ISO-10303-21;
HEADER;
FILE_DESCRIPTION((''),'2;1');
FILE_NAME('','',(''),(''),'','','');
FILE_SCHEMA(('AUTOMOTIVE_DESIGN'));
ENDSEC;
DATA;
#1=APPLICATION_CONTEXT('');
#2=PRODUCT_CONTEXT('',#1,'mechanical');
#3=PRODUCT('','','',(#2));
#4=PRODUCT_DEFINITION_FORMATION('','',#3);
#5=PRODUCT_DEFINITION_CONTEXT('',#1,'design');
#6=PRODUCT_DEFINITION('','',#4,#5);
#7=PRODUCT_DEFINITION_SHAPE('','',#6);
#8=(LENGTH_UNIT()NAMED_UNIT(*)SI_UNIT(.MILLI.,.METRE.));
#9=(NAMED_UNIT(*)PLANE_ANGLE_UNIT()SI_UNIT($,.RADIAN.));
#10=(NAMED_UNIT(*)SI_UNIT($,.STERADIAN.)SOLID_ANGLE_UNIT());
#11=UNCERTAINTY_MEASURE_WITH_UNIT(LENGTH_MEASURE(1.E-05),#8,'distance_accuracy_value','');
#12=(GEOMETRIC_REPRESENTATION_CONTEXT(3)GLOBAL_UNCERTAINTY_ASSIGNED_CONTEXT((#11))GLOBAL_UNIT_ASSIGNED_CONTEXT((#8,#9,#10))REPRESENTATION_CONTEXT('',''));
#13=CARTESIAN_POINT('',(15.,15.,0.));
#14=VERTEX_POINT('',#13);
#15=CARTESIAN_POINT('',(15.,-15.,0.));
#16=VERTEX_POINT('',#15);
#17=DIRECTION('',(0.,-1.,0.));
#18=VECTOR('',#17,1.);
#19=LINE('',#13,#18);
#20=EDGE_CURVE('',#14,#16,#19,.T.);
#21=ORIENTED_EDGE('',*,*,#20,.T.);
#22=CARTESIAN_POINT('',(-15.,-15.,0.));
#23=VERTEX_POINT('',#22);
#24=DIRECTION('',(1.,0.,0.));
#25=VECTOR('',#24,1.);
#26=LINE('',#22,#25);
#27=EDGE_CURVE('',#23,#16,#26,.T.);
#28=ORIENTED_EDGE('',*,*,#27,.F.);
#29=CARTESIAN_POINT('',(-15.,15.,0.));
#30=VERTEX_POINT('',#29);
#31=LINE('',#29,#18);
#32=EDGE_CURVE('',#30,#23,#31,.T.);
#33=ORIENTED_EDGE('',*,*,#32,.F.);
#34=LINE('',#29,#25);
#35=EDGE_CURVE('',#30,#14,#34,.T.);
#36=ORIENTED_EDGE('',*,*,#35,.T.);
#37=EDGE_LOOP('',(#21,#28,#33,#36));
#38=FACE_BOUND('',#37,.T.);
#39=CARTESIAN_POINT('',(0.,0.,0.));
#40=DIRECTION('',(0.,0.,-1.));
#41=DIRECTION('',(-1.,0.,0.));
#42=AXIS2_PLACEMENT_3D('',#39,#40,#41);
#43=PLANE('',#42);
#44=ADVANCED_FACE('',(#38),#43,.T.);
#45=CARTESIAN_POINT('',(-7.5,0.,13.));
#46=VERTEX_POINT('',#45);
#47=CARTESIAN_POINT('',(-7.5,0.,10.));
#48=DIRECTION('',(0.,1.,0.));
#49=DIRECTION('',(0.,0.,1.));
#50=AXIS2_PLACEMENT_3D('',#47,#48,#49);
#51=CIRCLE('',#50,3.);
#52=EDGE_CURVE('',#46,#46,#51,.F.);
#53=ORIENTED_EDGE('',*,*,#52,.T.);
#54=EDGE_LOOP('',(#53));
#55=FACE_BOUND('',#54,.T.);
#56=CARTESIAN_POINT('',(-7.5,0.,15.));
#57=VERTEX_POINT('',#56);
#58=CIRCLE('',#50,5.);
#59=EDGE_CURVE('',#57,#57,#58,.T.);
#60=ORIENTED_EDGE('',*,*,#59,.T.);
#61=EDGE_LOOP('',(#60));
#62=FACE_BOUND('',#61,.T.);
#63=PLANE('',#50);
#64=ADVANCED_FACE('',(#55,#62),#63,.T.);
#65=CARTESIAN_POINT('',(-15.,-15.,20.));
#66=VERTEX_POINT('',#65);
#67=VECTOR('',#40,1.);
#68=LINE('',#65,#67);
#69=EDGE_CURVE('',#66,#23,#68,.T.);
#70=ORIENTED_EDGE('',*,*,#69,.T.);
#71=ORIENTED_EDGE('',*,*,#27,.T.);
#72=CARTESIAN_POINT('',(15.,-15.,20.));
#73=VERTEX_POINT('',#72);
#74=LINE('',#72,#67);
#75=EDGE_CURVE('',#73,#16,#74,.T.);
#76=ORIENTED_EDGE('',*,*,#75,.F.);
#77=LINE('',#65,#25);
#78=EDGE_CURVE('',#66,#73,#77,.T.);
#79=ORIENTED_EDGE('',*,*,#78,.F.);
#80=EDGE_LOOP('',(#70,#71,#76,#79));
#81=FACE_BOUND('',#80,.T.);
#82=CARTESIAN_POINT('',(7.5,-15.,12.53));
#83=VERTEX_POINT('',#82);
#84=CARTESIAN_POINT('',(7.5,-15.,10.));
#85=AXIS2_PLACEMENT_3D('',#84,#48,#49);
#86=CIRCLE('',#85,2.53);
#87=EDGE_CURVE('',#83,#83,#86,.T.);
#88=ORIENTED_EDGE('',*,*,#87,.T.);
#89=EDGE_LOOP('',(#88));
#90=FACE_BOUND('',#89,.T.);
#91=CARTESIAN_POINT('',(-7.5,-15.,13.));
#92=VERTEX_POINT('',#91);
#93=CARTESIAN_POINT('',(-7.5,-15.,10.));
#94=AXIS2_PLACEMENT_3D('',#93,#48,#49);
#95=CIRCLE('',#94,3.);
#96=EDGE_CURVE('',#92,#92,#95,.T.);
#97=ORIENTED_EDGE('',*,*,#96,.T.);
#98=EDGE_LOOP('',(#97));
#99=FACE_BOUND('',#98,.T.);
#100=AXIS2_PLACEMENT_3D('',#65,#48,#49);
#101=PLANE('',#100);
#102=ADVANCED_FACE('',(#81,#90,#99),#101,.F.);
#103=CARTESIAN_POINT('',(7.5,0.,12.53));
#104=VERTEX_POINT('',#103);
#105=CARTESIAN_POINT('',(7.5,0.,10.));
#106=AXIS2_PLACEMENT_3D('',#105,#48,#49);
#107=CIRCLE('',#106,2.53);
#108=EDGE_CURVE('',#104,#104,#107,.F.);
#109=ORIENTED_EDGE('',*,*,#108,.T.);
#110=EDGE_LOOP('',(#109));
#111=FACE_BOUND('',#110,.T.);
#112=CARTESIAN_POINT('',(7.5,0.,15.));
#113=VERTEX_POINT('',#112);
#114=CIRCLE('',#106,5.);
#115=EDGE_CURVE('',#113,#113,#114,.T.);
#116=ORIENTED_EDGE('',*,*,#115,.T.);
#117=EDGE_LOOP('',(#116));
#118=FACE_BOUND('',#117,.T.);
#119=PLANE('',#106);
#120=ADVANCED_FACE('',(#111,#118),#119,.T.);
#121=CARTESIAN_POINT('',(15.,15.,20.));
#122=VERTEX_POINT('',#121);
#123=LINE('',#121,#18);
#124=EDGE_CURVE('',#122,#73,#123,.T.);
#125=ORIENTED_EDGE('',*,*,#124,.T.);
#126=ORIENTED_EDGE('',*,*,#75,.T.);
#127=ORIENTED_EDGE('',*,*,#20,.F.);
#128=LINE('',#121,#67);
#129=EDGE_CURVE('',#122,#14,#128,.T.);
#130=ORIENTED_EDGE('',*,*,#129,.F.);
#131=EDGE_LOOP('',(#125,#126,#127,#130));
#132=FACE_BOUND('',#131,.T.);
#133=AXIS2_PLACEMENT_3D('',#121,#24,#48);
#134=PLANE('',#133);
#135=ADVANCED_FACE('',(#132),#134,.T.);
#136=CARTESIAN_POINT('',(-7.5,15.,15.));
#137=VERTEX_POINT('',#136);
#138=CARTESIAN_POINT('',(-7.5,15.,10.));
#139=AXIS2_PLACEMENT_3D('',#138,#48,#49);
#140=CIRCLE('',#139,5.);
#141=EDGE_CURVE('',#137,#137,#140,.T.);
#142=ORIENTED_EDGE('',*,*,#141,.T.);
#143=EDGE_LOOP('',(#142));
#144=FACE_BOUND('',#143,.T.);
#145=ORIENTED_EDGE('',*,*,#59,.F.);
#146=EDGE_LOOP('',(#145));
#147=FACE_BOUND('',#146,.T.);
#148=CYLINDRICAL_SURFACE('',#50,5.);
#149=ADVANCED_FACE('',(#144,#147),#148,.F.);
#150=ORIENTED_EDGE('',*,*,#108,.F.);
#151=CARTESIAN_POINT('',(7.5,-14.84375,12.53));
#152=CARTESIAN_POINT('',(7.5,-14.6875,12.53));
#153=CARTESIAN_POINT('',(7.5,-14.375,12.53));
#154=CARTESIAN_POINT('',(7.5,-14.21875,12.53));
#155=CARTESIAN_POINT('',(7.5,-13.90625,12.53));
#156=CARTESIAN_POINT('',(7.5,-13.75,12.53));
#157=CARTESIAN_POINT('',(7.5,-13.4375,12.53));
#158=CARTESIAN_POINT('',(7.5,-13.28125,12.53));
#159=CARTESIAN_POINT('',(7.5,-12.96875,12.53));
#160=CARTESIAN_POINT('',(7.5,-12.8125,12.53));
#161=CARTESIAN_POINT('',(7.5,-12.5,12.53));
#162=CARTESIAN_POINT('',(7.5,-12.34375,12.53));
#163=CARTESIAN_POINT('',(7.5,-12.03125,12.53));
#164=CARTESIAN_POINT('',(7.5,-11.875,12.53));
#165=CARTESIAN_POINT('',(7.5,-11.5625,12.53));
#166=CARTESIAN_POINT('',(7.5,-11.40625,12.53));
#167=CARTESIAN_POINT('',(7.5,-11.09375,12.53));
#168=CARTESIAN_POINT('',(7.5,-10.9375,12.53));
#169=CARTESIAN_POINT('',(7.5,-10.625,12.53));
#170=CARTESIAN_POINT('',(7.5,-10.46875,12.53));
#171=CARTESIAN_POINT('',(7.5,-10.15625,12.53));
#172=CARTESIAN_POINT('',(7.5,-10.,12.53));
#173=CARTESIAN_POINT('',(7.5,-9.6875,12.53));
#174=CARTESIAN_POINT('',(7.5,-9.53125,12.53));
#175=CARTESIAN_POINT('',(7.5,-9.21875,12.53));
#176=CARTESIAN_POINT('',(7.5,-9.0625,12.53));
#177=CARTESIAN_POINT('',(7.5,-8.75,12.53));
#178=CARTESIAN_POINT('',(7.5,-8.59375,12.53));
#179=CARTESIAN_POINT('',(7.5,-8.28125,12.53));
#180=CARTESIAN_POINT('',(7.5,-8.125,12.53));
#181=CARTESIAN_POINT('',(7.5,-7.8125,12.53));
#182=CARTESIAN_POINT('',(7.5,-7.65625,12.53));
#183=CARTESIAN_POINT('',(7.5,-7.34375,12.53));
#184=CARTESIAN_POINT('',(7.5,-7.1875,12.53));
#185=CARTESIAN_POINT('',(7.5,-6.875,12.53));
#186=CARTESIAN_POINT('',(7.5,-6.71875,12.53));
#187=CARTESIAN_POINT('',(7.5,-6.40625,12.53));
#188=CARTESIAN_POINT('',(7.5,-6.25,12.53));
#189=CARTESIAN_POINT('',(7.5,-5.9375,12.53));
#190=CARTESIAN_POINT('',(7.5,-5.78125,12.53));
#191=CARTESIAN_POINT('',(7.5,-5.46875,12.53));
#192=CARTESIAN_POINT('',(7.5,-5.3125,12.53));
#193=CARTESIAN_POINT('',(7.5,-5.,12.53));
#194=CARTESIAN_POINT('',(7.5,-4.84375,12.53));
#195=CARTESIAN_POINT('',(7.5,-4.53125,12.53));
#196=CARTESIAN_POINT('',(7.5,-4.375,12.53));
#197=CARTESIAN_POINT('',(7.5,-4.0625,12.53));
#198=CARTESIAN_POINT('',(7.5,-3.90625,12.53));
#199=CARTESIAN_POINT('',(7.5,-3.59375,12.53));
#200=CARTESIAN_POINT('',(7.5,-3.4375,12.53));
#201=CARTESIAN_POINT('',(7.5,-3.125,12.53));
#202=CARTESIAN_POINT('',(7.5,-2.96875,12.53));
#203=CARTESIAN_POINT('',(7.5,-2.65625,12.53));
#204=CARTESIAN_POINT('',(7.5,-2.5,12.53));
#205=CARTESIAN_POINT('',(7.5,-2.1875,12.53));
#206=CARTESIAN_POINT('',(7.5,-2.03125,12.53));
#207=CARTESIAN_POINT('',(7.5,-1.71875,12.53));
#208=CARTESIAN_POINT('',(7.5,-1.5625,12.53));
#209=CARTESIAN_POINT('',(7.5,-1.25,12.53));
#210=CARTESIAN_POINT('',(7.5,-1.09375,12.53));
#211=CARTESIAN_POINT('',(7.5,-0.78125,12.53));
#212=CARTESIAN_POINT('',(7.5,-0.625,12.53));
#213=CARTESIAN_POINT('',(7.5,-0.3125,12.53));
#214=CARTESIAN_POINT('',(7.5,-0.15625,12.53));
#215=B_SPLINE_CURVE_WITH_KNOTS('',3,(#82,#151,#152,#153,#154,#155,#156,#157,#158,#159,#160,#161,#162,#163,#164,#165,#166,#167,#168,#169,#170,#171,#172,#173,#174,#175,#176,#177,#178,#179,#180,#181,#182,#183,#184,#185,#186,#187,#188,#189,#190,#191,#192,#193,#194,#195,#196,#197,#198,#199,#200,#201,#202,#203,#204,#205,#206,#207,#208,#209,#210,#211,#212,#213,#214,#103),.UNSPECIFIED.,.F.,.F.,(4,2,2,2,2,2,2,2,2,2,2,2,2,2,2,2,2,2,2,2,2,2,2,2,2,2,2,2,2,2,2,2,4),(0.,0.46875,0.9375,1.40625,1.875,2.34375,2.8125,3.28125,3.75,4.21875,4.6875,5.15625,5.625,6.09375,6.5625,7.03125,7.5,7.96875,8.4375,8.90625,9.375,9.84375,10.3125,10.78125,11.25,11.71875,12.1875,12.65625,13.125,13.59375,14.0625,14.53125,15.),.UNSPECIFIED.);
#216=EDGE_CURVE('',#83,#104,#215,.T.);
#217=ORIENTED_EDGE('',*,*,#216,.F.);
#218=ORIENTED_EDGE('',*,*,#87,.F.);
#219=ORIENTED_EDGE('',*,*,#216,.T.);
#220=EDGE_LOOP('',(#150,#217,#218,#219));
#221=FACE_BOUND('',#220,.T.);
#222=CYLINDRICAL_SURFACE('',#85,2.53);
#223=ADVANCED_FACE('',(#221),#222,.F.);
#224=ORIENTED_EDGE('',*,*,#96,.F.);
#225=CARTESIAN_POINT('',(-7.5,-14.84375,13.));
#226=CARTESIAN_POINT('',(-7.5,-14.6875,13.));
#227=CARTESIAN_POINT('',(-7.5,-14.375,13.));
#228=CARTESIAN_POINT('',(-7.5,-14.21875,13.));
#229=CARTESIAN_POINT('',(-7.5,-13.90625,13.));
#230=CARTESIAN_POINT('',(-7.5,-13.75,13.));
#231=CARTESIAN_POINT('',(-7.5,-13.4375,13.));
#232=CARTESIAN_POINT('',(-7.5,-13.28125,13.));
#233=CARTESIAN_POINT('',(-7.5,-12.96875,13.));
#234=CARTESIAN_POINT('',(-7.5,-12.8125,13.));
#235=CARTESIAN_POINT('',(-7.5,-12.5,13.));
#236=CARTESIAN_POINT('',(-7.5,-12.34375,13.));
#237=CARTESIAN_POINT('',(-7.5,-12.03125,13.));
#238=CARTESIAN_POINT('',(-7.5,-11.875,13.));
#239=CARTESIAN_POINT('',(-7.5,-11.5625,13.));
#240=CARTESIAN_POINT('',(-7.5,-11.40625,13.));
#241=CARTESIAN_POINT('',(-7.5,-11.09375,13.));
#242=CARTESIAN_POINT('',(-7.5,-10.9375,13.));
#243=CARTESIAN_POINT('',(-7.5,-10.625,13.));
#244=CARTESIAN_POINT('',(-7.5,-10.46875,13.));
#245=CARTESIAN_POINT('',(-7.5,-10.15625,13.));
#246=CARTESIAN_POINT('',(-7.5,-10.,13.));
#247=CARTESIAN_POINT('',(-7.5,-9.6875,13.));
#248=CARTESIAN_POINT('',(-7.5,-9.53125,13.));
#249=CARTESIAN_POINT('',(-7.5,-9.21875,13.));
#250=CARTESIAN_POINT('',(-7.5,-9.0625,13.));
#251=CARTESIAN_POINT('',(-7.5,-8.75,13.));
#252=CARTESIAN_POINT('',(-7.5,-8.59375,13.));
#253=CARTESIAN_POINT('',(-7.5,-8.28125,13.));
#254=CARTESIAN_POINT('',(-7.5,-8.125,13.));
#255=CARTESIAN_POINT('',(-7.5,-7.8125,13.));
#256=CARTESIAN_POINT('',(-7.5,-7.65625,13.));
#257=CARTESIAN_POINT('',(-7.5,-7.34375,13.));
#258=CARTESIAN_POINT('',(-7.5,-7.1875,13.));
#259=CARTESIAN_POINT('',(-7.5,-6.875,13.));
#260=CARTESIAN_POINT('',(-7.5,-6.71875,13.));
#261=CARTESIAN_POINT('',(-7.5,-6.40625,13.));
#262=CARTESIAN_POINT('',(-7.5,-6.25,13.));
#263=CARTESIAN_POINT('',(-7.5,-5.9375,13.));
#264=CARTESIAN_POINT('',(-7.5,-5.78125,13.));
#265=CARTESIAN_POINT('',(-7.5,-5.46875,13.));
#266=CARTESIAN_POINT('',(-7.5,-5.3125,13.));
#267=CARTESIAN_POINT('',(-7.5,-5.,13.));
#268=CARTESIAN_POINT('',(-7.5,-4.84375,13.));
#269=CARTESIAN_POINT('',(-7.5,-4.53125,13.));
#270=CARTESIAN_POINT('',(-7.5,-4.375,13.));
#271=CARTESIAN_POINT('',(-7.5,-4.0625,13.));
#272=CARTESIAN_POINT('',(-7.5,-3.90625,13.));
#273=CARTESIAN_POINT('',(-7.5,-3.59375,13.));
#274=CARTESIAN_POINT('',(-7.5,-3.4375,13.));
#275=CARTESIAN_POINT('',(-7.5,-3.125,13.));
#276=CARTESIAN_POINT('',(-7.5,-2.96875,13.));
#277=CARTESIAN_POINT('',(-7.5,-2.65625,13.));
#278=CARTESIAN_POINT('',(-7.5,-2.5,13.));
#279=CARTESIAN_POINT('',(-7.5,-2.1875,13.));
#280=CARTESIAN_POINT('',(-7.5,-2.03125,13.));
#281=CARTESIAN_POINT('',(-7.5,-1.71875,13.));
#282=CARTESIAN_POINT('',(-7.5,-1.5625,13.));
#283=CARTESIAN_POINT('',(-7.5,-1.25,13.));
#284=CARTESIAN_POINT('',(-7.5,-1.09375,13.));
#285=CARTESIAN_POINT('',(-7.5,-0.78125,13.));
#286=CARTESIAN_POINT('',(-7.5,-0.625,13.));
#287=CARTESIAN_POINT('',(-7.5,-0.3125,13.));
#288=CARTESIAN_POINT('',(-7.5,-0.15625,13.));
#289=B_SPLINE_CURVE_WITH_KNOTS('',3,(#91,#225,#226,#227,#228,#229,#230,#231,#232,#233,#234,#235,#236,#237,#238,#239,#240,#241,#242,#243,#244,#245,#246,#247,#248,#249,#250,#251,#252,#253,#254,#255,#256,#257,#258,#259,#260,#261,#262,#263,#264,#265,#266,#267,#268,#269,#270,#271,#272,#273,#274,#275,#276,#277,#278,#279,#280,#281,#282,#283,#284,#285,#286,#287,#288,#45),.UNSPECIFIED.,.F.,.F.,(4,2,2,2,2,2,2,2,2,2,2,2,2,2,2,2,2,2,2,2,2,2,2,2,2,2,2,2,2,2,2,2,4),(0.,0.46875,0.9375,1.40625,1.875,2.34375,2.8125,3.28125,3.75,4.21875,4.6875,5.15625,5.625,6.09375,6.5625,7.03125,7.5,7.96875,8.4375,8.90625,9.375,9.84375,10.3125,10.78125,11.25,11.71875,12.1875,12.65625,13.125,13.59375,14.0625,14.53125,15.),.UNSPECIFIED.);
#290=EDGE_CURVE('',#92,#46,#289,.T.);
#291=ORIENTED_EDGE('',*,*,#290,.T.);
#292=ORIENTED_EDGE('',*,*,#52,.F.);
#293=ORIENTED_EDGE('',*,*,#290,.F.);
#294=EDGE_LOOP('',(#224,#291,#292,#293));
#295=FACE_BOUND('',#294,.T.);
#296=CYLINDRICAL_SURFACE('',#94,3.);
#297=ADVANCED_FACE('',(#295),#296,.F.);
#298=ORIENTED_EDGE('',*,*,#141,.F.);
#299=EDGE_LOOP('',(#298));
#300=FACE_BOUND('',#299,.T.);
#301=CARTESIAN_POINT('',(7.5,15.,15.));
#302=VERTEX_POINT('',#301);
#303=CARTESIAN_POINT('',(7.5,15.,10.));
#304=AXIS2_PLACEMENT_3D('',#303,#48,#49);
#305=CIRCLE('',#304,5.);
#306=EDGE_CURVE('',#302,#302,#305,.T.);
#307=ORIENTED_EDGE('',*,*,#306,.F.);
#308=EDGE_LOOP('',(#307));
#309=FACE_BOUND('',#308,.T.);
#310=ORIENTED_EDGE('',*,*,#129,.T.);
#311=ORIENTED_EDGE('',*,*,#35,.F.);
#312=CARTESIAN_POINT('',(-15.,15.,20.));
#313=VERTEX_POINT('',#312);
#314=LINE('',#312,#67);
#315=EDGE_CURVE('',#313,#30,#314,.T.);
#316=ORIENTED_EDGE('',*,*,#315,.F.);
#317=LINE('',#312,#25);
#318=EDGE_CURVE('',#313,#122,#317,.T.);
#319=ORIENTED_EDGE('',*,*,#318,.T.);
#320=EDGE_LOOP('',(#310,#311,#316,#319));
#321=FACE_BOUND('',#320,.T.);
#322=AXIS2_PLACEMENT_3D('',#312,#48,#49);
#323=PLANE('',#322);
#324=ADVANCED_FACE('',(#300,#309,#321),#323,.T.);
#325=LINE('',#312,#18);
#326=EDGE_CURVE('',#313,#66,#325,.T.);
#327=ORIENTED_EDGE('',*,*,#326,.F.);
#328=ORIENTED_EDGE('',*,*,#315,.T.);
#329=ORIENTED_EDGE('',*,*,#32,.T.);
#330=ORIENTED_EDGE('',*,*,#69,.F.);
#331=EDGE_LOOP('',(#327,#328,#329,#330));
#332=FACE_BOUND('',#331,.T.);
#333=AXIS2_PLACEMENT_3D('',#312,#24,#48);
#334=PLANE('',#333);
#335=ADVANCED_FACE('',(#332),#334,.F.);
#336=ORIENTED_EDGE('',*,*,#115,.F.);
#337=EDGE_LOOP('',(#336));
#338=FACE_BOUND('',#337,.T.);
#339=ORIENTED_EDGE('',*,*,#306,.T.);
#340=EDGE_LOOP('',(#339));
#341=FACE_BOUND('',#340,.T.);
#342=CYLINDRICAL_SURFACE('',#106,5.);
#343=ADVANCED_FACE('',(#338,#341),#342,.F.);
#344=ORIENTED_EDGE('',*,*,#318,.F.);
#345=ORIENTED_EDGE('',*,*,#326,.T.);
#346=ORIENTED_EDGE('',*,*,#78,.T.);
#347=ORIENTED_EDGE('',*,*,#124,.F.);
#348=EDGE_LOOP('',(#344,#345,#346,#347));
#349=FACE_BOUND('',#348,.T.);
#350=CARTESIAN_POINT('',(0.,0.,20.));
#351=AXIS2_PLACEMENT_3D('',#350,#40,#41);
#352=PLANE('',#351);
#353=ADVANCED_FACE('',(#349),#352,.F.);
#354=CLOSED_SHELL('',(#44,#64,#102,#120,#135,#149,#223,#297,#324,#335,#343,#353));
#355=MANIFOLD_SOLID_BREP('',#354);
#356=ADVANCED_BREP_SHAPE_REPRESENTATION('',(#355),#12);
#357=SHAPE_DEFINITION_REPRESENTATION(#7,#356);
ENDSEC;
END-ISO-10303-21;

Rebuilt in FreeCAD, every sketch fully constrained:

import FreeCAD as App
import Part
import Sketcher
Q = App.Units.Quantity

doc = App.newDocument("Part")
body = doc.addObject("PartDesign::Body", "Body")

sketch1 = body.newObject("Sketcher::SketchObject", "Sketch")
sketch1.AttachmentSupport = (doc.getObject("XY_Plane"), [""])
sketch1.MapMode = "FlatFace"
sketch1.addGeometry(Part.LineSegment(App.Vector(-15, 15, 0), App.Vector(-15, -15, 0)), False)
sketch1.addGeometry(Part.LineSegment(App.Vector(-15, -15, 0), App.Vector(15, -15, 0)), False)
sketch1.addGeometry(Part.LineSegment(App.Vector(15, -15, 0), App.Vector(15, 15, 0)), False)
sketch1.addGeometry(Part.LineSegment(App.Vector(15, 15, 0), App.Vector(-15, 15, 0)), False)
sketch1.addConstraint(Sketcher.Constraint("Coincident", 0, 2, 1, 1))
sketch1.addConstraint(Sketcher.Constraint("Coincident", 1, 2, 2, 1))
sketch1.addConstraint(Sketcher.Constraint("Coincident", 2, 2, 3, 1))
sketch1.addConstraint(Sketcher.Constraint("Coincident", 3, 2, 0, 1))
sketch1.addConstraint(Sketcher.Constraint("Vertical", 0))
sketch1.addConstraint(Sketcher.Constraint("Horizontal", 1))
sketch1.addConstraint(Sketcher.Constraint("Vertical", 2))
sketch1.addConstraint(Sketcher.Constraint("Horizontal", 3))
sketch1.addConstraint(Sketcher.Constraint("Symmetric", 0, 2, 2, 2, -1, 1))
sketch1.addConstraint(Sketcher.Constraint("Equal", 3, 0))
sketch1.addConstraint(Sketcher.Constraint("DistanceX", 1, 1, 1, 2, Q("30 mm")))
pad1 = body.newObject("PartDesign::Pad", "Pad")
pad1.Profile = sketch1
pad1.Length = 20

sketch2 = body.newObject("Sketcher::SketchObject", "Sketch001")
sketch2.AttachmentSupport = (doc.getObject("XZ_Plane"), [""])
sketch2.MapMode = "FlatFace"
sketch2.AttachmentOffset = App.Placement(App.Vector(0, 0, -15), App.Rotation())
sketch2.addGeometry(Part.Circle(App.Vector(-7.5, 10, 0), App.Vector(0, 0, 1), 3), False)
sketch2.addGeometry(Part.Circle(App.Vector(7.5, 10, 0), App.Vector(0, 0, 1), 2.53), False)
sketch2.addConstraint(Sketcher.Constraint("Symmetric", 0, 3, 1, 3, -2))
sketch2.addConstraint(Sketcher.Constraint("Diameter", 0, Q("6 mm")))
sketch2.addConstraint(Sketcher.Constraint("Diameter", 1, Q("5.06 mm")))
sketch2.addConstraint(Sketcher.Constraint("DistanceY", -1, 1, 0, 3, Q("10 mm")))
sketch2.addConstraint(Sketcher.Constraint("DistanceX", 0, 3, 1, 3, Q("15 mm")))
pocket1 = body.newObject("PartDesign::Pocket", "Pocket")
pocket1.Profile = sketch2
pocket1.Type = "ThroughAll"
pocket1.Reversed = True

sketch3 = body.newObject("Sketcher::SketchObject", "Sketch002")
sketch3.AttachmentSupport = (doc.getObject("XZ_Plane"), [""])
sketch3.MapMode = "FlatFace"
sketch3.AttachmentOffset = App.Placement(App.Vector(0, 0, -15), App.Rotation())
sketch3.addGeometry(Part.Circle(App.Vector(-7.5, 10, 0), App.Vector(0, 0, 1), 5), False)
sketch3.addGeometry(Part.Circle(App.Vector(7.5, 10, 0), App.Vector(0, 0, 1), 5), False)
sketch3.addConstraint(Sketcher.Constraint("Equal", 0, 1))
sketch3.addConstraint(Sketcher.Constraint("Symmetric", 0, 3, 1, 3, -2))
sketch3.addConstraint(Sketcher.Constraint("Diameter", 0, Q("10 mm")))
sketch3.addConstraint(Sketcher.Constraint("DistanceY", -1, 1, 0, 3, Q("10 mm")))
sketch3.addConstraint(Sketcher.Constraint("DistanceX", 0, 3, 1, 3, Q("15 mm")))
pocket2 = body.newObject("PartDesign::Pocket", "Pocket001")
pocket2.Profile = sketch3
pocket2.Length = 15
pocket2.Reversed = True

doc.recompute()
